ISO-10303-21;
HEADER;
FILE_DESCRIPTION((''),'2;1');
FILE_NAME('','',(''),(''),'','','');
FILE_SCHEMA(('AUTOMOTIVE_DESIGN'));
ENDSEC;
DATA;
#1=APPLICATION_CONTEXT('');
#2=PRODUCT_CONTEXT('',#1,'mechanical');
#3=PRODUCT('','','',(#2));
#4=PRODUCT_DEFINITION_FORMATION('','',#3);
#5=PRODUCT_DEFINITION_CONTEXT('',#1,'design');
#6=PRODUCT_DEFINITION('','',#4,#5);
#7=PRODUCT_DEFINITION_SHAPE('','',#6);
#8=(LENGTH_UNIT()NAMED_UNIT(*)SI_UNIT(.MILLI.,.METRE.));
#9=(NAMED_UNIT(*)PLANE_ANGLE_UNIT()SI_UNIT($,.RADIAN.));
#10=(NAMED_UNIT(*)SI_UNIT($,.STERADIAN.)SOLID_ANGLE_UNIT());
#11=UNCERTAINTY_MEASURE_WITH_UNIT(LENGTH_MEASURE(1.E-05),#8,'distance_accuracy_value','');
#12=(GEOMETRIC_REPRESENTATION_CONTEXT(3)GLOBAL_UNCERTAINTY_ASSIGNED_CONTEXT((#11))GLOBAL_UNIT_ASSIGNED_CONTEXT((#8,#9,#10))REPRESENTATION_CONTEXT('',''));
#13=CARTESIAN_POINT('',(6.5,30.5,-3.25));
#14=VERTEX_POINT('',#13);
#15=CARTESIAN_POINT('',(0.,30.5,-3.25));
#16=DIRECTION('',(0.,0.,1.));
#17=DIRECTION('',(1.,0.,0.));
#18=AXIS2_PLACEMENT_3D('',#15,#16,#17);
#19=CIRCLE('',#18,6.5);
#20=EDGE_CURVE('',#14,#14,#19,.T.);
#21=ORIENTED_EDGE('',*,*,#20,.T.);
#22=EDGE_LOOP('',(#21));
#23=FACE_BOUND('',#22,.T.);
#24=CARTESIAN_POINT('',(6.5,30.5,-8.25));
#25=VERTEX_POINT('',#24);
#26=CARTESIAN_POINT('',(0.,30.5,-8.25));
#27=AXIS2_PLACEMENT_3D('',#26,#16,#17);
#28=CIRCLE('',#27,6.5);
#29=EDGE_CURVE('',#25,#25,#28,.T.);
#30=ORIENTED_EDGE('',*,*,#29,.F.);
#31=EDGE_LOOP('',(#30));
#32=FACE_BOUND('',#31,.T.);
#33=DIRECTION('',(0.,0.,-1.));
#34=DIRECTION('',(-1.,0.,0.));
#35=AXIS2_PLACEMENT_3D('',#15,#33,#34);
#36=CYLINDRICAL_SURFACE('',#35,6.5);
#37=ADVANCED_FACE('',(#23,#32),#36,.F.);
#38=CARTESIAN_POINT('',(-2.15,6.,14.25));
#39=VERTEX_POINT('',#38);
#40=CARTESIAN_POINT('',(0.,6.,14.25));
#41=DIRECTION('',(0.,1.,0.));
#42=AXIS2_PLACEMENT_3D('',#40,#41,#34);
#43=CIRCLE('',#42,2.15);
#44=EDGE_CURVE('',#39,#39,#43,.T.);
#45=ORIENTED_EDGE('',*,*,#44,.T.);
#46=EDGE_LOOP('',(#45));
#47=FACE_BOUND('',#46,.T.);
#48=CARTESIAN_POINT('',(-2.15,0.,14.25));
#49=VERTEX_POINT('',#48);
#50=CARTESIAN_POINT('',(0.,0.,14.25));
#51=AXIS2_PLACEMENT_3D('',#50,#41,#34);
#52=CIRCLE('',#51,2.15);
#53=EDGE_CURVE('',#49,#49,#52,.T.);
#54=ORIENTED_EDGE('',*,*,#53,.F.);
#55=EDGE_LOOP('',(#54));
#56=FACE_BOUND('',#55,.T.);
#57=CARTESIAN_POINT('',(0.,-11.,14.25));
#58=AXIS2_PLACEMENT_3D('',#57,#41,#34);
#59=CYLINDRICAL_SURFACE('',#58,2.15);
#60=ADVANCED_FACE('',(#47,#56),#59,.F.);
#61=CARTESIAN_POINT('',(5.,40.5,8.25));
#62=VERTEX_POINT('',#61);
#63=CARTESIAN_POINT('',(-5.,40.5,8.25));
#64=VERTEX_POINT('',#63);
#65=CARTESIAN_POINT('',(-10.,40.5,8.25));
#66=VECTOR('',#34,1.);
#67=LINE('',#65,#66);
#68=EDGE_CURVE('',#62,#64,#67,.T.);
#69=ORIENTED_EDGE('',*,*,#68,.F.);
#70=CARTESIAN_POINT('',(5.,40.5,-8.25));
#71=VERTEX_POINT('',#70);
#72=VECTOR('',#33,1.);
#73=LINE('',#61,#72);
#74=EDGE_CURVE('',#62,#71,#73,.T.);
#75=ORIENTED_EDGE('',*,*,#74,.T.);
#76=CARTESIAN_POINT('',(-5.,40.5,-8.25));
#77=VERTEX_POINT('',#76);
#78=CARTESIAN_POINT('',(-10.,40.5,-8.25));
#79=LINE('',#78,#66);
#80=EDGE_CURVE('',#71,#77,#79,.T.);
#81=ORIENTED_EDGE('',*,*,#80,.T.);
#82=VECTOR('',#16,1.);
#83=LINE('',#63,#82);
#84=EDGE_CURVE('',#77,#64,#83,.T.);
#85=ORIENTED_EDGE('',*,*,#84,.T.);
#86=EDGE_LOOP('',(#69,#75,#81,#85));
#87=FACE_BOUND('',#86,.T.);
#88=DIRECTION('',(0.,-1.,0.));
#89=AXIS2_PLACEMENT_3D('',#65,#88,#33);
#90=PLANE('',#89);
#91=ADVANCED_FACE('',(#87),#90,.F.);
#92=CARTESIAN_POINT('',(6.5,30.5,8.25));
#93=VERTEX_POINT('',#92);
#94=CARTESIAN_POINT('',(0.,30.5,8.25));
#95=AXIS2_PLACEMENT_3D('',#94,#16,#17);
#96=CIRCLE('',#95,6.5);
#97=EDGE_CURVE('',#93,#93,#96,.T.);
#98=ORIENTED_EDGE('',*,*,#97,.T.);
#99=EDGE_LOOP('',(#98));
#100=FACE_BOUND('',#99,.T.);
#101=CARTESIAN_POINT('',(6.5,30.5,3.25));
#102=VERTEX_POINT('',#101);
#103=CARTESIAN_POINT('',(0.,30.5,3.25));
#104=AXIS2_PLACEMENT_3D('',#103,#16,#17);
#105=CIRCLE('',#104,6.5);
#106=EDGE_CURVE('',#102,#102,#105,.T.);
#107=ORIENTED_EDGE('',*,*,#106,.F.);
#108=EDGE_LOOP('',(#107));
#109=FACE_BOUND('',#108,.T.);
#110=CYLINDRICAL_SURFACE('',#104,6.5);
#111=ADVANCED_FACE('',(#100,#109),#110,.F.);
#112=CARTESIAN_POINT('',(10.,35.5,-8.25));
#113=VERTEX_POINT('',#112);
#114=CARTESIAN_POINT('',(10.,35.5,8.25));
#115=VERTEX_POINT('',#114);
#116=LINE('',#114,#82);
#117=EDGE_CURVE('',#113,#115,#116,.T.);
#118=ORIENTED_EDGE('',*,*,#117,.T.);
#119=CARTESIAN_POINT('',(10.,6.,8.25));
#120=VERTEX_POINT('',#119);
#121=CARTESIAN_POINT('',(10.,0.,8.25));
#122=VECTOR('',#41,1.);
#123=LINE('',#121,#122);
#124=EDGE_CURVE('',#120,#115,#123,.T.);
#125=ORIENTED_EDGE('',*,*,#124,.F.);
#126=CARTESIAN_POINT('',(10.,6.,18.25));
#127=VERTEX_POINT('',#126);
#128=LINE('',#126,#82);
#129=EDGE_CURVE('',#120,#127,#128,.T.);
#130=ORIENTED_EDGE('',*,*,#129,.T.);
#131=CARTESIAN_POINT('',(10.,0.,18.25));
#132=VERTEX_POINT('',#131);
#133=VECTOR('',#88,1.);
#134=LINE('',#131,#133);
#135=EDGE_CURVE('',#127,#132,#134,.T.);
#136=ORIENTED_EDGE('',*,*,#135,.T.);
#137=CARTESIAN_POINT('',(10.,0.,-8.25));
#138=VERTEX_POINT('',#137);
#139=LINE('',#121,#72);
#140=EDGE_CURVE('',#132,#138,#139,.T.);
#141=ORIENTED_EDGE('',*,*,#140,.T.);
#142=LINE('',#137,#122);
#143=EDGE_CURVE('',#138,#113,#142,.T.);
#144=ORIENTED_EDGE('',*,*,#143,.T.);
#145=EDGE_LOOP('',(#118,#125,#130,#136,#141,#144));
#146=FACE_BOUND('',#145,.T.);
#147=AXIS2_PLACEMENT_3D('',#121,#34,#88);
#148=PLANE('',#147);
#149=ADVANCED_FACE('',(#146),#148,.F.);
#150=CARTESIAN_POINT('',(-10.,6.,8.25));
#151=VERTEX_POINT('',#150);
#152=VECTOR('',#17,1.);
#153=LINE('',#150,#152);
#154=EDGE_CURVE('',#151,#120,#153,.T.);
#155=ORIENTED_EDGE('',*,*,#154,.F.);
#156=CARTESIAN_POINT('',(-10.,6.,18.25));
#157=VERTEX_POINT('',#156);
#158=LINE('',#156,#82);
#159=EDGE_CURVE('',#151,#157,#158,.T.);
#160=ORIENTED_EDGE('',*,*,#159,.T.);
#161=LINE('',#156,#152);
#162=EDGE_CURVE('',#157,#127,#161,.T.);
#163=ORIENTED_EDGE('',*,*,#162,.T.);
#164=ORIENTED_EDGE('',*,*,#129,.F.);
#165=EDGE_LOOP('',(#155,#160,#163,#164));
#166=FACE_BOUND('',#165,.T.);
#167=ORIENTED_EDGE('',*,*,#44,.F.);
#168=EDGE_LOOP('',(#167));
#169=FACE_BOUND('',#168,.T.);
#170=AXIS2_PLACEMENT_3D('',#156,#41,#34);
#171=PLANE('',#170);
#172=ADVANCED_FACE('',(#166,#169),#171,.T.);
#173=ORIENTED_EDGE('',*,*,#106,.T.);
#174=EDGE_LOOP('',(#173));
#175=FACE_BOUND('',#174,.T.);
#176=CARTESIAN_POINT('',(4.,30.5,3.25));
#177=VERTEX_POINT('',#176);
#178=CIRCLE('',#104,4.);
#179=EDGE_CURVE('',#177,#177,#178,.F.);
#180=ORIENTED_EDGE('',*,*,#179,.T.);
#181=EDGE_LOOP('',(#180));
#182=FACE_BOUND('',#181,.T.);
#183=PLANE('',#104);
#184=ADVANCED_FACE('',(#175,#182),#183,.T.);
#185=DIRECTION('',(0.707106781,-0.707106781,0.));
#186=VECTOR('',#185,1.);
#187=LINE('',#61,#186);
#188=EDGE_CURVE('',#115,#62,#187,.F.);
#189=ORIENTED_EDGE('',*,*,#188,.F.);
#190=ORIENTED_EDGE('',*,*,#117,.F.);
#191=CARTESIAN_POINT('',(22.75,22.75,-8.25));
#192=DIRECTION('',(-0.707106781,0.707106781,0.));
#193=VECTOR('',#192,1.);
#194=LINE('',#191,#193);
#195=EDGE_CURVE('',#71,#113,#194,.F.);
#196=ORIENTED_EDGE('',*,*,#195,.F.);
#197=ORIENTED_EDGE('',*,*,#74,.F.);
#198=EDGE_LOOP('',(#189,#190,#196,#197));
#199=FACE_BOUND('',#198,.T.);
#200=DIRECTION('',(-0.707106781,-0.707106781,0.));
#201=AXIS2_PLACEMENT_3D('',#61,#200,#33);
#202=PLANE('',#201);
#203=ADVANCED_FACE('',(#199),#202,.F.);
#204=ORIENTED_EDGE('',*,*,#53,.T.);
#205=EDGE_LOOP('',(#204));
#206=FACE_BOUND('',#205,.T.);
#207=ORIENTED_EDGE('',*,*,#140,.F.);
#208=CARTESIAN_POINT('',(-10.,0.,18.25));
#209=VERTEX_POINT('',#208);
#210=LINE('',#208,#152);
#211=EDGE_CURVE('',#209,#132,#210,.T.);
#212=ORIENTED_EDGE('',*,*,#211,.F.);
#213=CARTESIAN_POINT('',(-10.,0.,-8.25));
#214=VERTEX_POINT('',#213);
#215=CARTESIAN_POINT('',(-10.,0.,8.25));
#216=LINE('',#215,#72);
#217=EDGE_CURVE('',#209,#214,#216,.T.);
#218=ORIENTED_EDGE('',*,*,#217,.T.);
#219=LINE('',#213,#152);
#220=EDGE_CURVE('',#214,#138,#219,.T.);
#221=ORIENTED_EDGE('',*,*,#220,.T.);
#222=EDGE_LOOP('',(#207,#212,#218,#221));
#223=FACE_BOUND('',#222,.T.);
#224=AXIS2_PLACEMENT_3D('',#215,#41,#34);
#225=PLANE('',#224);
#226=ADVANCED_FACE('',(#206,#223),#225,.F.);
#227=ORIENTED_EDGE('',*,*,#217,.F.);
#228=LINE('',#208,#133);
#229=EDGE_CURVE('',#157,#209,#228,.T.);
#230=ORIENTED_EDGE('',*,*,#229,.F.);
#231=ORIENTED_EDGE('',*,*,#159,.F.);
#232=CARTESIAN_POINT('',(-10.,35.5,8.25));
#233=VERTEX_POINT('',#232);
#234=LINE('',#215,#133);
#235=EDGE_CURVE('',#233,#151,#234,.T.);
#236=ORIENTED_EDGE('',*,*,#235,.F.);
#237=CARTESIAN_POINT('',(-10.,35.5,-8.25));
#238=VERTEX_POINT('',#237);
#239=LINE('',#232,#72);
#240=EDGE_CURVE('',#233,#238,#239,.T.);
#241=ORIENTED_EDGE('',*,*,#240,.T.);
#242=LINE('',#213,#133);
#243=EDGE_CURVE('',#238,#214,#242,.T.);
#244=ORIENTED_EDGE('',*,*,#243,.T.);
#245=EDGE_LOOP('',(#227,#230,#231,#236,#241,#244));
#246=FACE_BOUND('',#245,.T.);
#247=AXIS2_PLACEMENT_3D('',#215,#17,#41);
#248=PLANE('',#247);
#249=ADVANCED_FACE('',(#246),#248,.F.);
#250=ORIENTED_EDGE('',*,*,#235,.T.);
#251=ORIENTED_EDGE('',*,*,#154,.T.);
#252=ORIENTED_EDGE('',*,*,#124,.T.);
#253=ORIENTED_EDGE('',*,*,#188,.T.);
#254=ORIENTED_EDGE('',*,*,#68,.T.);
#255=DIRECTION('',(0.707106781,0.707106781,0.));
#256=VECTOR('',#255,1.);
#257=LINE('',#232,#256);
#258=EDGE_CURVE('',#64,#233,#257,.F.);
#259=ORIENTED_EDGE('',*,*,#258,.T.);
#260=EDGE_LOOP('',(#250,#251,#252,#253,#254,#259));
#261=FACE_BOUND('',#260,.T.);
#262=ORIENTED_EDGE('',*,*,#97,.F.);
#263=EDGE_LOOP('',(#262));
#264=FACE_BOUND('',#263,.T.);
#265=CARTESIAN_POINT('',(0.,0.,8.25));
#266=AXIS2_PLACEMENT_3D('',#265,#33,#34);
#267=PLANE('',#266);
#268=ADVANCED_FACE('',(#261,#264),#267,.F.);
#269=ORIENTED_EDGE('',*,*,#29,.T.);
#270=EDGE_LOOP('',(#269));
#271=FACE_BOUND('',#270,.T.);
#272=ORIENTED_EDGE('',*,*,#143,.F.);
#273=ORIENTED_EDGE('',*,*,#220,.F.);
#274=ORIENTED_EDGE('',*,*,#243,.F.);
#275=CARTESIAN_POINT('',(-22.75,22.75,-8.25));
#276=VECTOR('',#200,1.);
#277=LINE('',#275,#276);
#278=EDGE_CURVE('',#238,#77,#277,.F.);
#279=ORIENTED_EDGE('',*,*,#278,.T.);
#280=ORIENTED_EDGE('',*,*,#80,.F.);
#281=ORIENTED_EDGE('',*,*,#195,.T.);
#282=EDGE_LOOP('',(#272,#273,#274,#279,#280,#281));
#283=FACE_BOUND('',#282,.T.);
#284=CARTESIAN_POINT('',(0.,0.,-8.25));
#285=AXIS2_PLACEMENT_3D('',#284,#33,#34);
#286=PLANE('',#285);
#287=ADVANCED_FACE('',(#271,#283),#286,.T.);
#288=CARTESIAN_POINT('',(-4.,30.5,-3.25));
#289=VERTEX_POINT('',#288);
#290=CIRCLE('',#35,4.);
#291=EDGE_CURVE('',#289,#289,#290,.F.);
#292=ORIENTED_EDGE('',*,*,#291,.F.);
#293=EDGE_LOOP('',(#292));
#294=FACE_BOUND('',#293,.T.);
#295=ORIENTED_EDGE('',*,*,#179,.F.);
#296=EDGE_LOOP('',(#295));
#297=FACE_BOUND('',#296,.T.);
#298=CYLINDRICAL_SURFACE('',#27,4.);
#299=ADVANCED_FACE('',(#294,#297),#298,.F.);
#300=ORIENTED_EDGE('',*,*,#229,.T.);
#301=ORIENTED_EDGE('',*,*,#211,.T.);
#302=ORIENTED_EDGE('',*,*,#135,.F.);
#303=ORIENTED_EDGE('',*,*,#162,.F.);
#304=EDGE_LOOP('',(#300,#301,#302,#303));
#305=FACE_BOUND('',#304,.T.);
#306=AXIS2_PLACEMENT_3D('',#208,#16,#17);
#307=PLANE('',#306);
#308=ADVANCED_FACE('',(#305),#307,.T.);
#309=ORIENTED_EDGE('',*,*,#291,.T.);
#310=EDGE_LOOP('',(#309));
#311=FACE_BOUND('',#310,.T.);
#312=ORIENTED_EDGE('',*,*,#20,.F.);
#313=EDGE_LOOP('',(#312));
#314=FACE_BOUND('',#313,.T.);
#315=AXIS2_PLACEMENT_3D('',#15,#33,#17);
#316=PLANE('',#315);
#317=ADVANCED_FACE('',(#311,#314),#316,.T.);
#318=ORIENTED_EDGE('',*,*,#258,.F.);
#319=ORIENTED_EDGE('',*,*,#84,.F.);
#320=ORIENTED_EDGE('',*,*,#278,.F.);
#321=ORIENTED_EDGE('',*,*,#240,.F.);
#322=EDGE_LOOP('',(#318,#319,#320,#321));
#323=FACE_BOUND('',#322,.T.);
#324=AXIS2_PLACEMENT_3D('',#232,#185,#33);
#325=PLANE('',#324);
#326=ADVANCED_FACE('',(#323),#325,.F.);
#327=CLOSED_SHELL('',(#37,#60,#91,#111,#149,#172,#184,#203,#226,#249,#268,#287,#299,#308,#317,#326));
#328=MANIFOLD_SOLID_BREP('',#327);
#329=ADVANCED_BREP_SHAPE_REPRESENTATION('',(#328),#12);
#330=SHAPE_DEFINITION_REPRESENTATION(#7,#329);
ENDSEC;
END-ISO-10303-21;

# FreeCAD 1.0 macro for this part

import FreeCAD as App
import Part
import Sketcher
from FreeCAD import Vector
Q = App.Units.Quantity


def edges_at(feature, points):
    """Names of the edges that pass closest to the given points."""
    edges = feature.Shape.Edges
    near = lambda p: min(range(len(edges)), key=lambda i: edges[i].distToShape(Part.Vertex(*p))[0])
    return sorted({f"Edge{near(p) + 1}" for p in points})


def add_polygon(sketch, points):
    """Adds a closed chain of lines whose ends are joined by coincident constraints."""
    first, n = sketch.GeometryCount, len(points)
    for a, b in zip(points, points[1:] + points[:1]):
        sketch.addGeometry(Part.LineSegment(App.Vector(*a, 0), App.Vector(*b, 0)), False)
    for i in range(n):
        sketch.addConstraint(Sketcher.Constraint("Coincident", first + i, 2, first + (i + 1) % n, 1))

doc = App.newDocument("Part")
params = doc.addObject("Spreadsheet::Sheet", "Params")
for row, (alias, value) in enumerate([
    ("sketch1_width", "20 mm"),
    ("sketch1_height", "40.5 mm"),
    ("pad1_length", "16.5 mm"),
    ("sketch2_diameter", "8 mm"),
    ("sketch3_diameter", "13 mm"),
    ("pocket2_length", "5 mm"),
    ("chamfer_size", "5 mm"),
    ("sketch4_width", "6 mm"),
    ("sketch4_height", "10 mm"),
    ("pad2_length", "20 mm"),
    ("sketch5_diameter", "4.3 mm"),
    ("pocket3_length", "17 mm"),
], start=1):
    params.set(f"A{row}", alias)
    params.set(f"B{row}", "=" + value)
    params.setAlias(f"B{row}", alias)

body = doc.addObject("PartDesign::Body", "Body")

# Sketch on XY plane
sketch1 = doc.addObject("Sketcher::SketchObject", "Sketch")
body.addObject(sketch1)
sketch1.AttachmentSupport = (doc.XY_Plane, [""])
sketch1.MapMode = "FlatFace"
add_polygon(sketch1, [(-10, 40), (-10, 0), (10, 0), (10, 40)])  # lines 0-3
sketch1.addConstraint(Sketcher.Constraint("Vertical", 0))
sketch1.addConstraint(Sketcher.Constraint("Horizontal", 1))
sketch1.addConstraint(Sketcher.Constraint("Vertical", 2))
sketch1.addConstraint(Sketcher.Constraint("Horizontal", 3))
sketch1.addConstraint(Sketcher.Constraint("Symmetric", 0, 2, 1, 2, -1, 1))
sketch1.addConstraint(Sketcher.Constraint("DistanceX", 1, 1, 1, 2, Q("20 mm")))
sketch1.addConstraint(Sketcher.Constraint("DistanceY", 0, 2, 0, 1, Q("40.5 mm")))
sketch1.setExpression("Constraints[9]", "Params.sketch1_width")
sketch1.setExpression("Constraints[10]", "Params.sketch1_height")
pad1 = doc.addObject("PartDesign::Pad", "Pad")
body.addObject(pad1)
pad1.Profile = sketch1
pad1.setExpression("Length", "Params.pad1_length")
pad1.Midplane = True

# Sketch on XY plane
sketch2 = doc.addObject("Sketcher::SketchObject", "Sketch001")
body.addObject(sketch2)
sketch2.AttachmentSupport = (doc.XY_Plane, [""])
sketch2.MapMode = "FlatFace"
sketch2.AttachmentOffset = App.Placement(Vector(0, 0, 8.25), App.Rotation())
sketch2.addGeometry(Part.Circle(Vector(0, 30.5, 0), Vector(0, 0, 1), 4), False)
sketch2.addConstraint(Sketcher.Constraint("PointOnObject", 0, 3, -2))
sketch2.addConstraint(Sketcher.Constraint("Diameter", 0, Q("8 mm")))
sketch2.addConstraint(Sketcher.Constraint("DistanceY", -1, 1, 0, 3, Q("30.5 mm")))
sketch2.setExpression("Constraints[1]", "Params.sketch2_diameter")
pocket1 = doc.addObject("PartDesign::Pocket", "Pocket")
body.addObject(pocket1)
pocket1.Profile = sketch2
pocket1.Type = "ThroughAll"

# Sketch on XY plane
sketch3 = doc.addObject("Sketcher::SketchObject", "Sketch002")
body.addObject(sketch3)
sketch3.AttachmentSupport = (doc.XY_Plane, [""])
sketch3.MapMode = "FlatFace"
sketch3.AttachmentOffset = App.Placement(Vector(0, 0, 8.25), App.Rotation())
sketch3.addGeometry(Part.Circle(Vector(0, 30, 0), Vector(0, 0, 1), 6), False)
sketch3.addConstraint(Sketcher.Constraint("PointOnObject", 0, 3, -2))
sketch3.addConstraint(Sketcher.Constraint("Diameter", 0, Q("13 mm")))
sketch3.addConstraint(Sketcher.Constraint("DistanceY", -1, 1, 0, 3, Q("30.5 mm")))
sketch3.setExpression("Constraints[1]", "Params.sketch3_diameter")
pocket2 = doc.addObject("PartDesign::Pocket", "Pocket001")
body.addObject(pocket2)
pocket2.Profile = sketch3
pocket2.setExpression("Length", "Params.pocket2_length")
doc.recompute()

mirrored = doc.addObject("PartDesign::Mirrored", "Mirrored")
body.addObject(mirrored)
mirrored.Originals = [pocket2]
mirrored.MirrorPlane = (doc.XY_Plane, [""])
body.Tip = mirrored
doc.recompute()

chamfer = doc.addObject("PartDesign::Chamfer", "Chamfer")
body.addObject(chamfer)
chamfer.Base = (mirrored, edges_at(mirrored, [(-10, 40.5, 0), (10, 40.5, 0)]))
chamfer.setExpression("Size", "Params.chamfer_size")

# Sketch on YZ plane
sketch4 = doc.addObject("Sketcher::SketchObject", "Sketch003")
body.addObject(sketch4)
sketch4.AttachmentSupport = (doc.YZ_Plane, [""])
sketch4.MapMode = "FlatFace"
sketch4.AttachmentOffset = App.Placement(Vector(0, 0, 10), App.Rotation())
add_polygon(sketch4, [(6, 18), (0, 18), (0, 8), (6, 8)])  # lines 0-3
sketch4.addConstraint(Sketcher.Constraint("Horizontal", 0))
sketch4.addConstraint(Sketcher.Constraint("Vertical", 1))
sketch4.addConstraint(Sketcher.Constraint("Horizontal", 2))
sketch4.addConstraint(Sketcher.Constraint("Vertical", 3))
sketch4.addConstraint(Sketcher.Constraint("PointOnObject", 0, 2, -2))
sketch4.addConstraint(Sketcher.Constraint("DistanceX", 0, 2, 0, 1, Q("6 mm")))
sketch4.addConstraint(Sketcher.Constraint("DistanceY", 1, 2, 1, 1, Q("10 mm")))
sketch4.addConstraint(Sketcher.Constraint("DistanceY", -1, 1, 0, 2, Q("18.25 mm")))
sketch4.setExpression("Constraints[9]", "Params.sketch4_width")
sketch4.setExpression("Constraints[10]", "Params.sketch4_height")
pad2 = doc.addObject("PartDesign::Pad", "Pad001")
body.addObject(pad2)
pad2.Profile = sketch4
pad2.setExpression("Length", "Params.pad2_length")
pad2.Reversed = True

# Sketch on XZ plane
sketch5 = doc.addObject("Sketcher::SketchObject", "Sketch004")
body.addObject(sketch5)
sketch5.AttachmentSupport = (doc.XZ_Plane, [""])
sketch5.MapMode = "FlatFace"
sketch5.AttachmentOffset = App.Placement(Vector(0, 0, -6), App.Rotation())
sketch5.addGeometry(Part.Circle(Vector(0, 14.2, 0), Vector(0, 0, 1), 2.1), False)
sketch5.addConstraint(Sketcher.Constraint("PointOnObject", 0, 3, -2))
sketch5.addConstraint(Sketcher.Constraint("Diameter", 0, Q("4.3 mm")))
sketch5.addConstraint(Sketcher.Constraint("DistanceY", -1, 1, 0, 3, Q("14.25 mm")))
sketch5.setExpression("Constraints[1]", "Params.sketch5_diameter")
pocket3 = doc.addObject("PartDesign::Pocket", "Pocket002")
body.addObject(pocket3)
pocket3.Profile = sketch5
pocket3.setExpression("Length", "Params.pocket3_length")
pocket3.Reversed = True

doc.recompute()
